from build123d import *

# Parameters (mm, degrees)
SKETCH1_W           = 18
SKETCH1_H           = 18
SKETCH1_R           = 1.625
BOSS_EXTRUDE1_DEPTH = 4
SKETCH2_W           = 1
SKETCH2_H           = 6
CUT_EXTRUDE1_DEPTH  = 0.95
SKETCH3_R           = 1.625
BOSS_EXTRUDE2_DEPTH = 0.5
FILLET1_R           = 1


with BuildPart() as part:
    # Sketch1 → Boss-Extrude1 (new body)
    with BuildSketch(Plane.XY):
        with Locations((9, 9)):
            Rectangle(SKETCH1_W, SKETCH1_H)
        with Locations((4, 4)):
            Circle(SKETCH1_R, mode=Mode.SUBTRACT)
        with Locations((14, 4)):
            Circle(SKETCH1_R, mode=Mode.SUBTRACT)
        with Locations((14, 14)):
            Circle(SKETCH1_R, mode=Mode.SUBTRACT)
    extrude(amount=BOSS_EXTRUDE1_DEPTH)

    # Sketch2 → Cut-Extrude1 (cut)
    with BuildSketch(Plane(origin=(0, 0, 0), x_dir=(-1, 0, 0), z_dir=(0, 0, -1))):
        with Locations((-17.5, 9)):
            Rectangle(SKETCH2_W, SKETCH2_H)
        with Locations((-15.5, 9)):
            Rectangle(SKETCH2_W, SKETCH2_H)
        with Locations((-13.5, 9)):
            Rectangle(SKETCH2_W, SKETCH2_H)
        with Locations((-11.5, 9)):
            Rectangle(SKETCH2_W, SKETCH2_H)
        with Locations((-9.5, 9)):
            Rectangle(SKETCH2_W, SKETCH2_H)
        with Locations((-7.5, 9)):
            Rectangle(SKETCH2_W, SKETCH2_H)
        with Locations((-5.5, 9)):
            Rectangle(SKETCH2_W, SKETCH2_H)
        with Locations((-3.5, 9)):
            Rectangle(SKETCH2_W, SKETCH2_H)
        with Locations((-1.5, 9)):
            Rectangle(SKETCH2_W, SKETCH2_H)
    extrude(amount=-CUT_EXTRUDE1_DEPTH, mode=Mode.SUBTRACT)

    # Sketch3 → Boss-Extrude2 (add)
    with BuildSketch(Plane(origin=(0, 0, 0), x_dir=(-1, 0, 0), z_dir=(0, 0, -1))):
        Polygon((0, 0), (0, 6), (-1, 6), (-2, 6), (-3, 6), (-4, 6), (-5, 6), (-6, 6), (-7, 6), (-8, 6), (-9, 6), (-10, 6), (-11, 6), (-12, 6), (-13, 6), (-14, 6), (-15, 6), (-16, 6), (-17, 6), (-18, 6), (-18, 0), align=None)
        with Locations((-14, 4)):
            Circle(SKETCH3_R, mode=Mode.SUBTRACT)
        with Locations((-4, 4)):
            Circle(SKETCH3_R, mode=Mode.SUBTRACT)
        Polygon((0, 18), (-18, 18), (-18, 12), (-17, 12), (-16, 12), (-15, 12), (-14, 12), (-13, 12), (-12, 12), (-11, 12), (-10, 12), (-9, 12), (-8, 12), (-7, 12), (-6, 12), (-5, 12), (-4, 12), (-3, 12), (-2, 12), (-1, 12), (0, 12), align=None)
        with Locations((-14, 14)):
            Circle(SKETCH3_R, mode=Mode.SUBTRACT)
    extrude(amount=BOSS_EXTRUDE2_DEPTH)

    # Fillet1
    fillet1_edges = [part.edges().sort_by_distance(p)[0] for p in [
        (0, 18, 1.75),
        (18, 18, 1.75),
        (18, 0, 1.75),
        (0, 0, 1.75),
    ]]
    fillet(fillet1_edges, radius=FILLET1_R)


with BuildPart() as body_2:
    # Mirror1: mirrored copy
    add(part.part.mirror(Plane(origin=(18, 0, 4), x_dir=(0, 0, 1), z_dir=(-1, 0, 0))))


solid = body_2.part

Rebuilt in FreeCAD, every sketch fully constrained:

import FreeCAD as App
import Part
import Sketcher

V = App.Vector


def edges_at(feature, points):
    """Names of the edges that pass closest to the given points."""
    edges = feature.Shape.Edges
    near = lambda p: min(range(len(edges)), key=lambda i: edges[i].distToShape(Part.Vertex(*p))[0])
    return sorted({f"Edge{near(p) + 1}" for p in points})

doc = App.newDocument("Part")
body = doc.addObject("PartDesign::Body", "Body")

# Sketch on XY plane
sketch1 = body.newObject("Sketcher::SketchObject", "Sketch")
sketch1.AttachmentSupport = (doc.getObject("XY_Plane"), [""])
sketch1.MapMode = "FlatFace"
sketch1.addGeometry(Part.LineSegment(V(0, 18, 0), V(0, 0, 0)), False)
sketch1.addGeometry(Part.LineSegment(V(0, 0, 0), V(18, 0, 0)), False)
sketch1.addGeometry(Part.LineSegment(V(18, 0, 0), V(18, 18, 0)), False)
sketch1.addGeometry(Part.LineSegment(V(18, 18, 0), V(0, 18, 0)), False)
sketch1.addGeometry(Part.Circle(V(4, 4, 0), V(0, 0, 1), 1.625), False)
sketch1.addGeometry(Part.Circle(V(14, 4, 0), V(0, 0, 1), 1.625), False)
sketch1.addGeometry(Part.Circle(V(14, 14, 0), V(0, 0, 1), 1.625), False)
sketch1.addConstraint(Sketcher.Constraint("Coincident", 0, 2, 1, 1))
sketch1.addConstraint(Sketcher.Constraint("Coincident", 1, 2, 2, 1))
sketch1.addConstraint(Sketcher.Constraint("Coincident", 2, 2, 3, 1))
sketch1.addConstraint(Sketcher.Constraint("Coincident", 3, 2, 0, 1))
sketch1.addConstraint(Sketcher.Constraint("Vertical", 0))
sketch1.addConstraint(Sketcher.Constraint("Horizontal", 1))
sketch1.addConstraint(Sketcher.Constraint("Vertical", 2))
sketch1.addConstraint(Sketcher.Constraint("Horizontal", 3))
sketch1.addConstraint(Sketcher.Constraint("Coincident", 0, 2, -1, 1))
sketch1.addConstraint(Sketcher.Constraint("Equal", 4, 5))
sketch1.addConstraint(Sketcher.Constraint("Equal", 5, 6))
sketch1.addConstraint(Sketcher.Constraint("Horizontal", 4, 3, 5, 3))
sketch1.addConstraint(Sketcher.Constraint("Vertical", 5, 3, 6, 3))
sketch1.addConstraint(Sketcher.Constraint("Equal", 3, 0))
sketch1.addConstraint(Sketcher.Constraint("Diameter", 4, 3.25))
sketch1.addConstraint(Sketcher.Constraint("DistanceX", 1, 1, 1, 2, 18.0))
sketch1.addConstraint(Sketcher.Constraint("DistanceX", -1, 1, 4, 3, 4.0))
sketch1.addConstraint(Sketcher.Constraint("DistanceY", -1, 1, 4, 3, 4.0))
sketch1.addConstraint(Sketcher.Constraint("DistanceX", -1, 1, 5, 3, 14.0))
sketch1.addConstraint(Sketcher.Constraint("DistanceY", -1, 1, 6, 3, 14.0))
pad1 = body.newObject("PartDesign::Pad", "Pad")
pad1.Profile = sketch1
pad1.Length = 4

# Sketch on XY plane
sketch2 = body.newObject("Sketcher::SketchObject", "Sketch001")
sketch2.AttachmentSupport = (doc.getObject("XY_Plane"), [""])
sketch2.MapMode = "FlatFace"
sketch2.addGeometry(Part.LineSegment(V(18, 12, 0), V(18, 6, 0)), False)
sketch2.addGeometry(Part.LineSegment(V(18, 6, 0), V(17, 6, 0)), False)
sketch2.addGeometry(Part.LineSegment(V(17, 6, 0), V(17, 12, 0)), False)
sketch2.addGeometry(Part.LineSegment(V(17, 12, 0), V(18, 12, 0)), False)
sketch2.addGeometry(Part.LineSegment(V(16, 12, 0), V(16, 6, 0)), False)
sketch2.addGeometry(Part.LineSegment(V(16, 6, 0), V(15, 6, 0)), False)
sketch2.addGeometry(Part.LineSegment(V(15, 6, 0), V(15, 12, 0)), False)
sketch2.addGeometry(Part.LineSegment(V(15, 12, 0), V(16, 12, 0)), False)
sketch2.addGeometry(Part.LineSegment(V(14, 12, 0), V(14, 6, 0)), False)
sketch2.addGeometry(Part.LineSegment(V(14, 6, 0), V(13, 6, 0)), False)
sketch2.addGeometry(Part.LineSegment(V(13, 6, 0), V(13, 12, 0)), False)
sketch2.addGeometry(Part.LineSegment(V(13, 12, 0), V(14, 12, 0)), False)
sketch2.addGeometry(Part.LineSegment(V(12, 12, 0), V(12, 6, 0)), False)
sketch2.addGeometry(Part.LineSegment(V(12, 6, 0), V(11, 6, 0)), False)
sketch2.addGeometry(Part.LineSegment(V(11, 6, 0), V(11, 12, 0)), False)
sketch2.addGeometry(Part.LineSegment(V(11, 12, 0), V(12, 12, 0)), False)
sketch2.addGeometry(Part.LineSegment(V(10, 12, 0), V(10, 6, 0)), False)
sketch2.addGeometry(Part.LineSegment(V(10, 6, 0), V(9, 6, 0)), False)
sketch2.addGeometry(Part.LineSegment(V(9, 6, 0), V(9, 12, 0)), False)
sketch2.addGeometry(Part.LineSegment(V(9, 12, 0), V(10, 12, 0)), False)
sketch2.addGeometry(Part.LineSegment(V(8, 12, 0), V(8, 6, 0)), False)
sketch2.addGeometry(Part.LineSegment(V(8, 6, 0), V(7, 6, 0)), False)
sketch2.addGeometry(Part.LineSegment(V(7, 6, 0), V(7, 12, 0)), False)
sketch2.addGeometry(Part.LineSegment(V(7, 12, 0), V(8, 12, 0)), False)
sketch2.addGeometry(Part.LineSegment(V(6, 12, 0), V(6, 6, 0)), False)
sketch2.addGeometry(Part.LineSegment(V(6, 6, 0), V(5, 6, 0)), False)
sketch2.addGeometry(Part.LineSegment(V(5, 6, 0), V(5, 12, 0)), False)
sketch2.addGeometry(Part.LineSegment(V(5, 12, 0), V(6, 12, 0)), False)
sketch2.addGeometry(Part.LineSegment(V(4, 12, 0), V(4, 6, 0)), False)
sketch2.addGeometry(Part.LineSegment(V(4, 6, 0), V(3, 6, 0)), False)
sketch2.addGeometry(Part.LineSegment(V(3, 6, 0), V(3, 12, 0)), False)
sketch2.addGeometry(Part.LineSegment(V(3, 12, 0), V(4, 12, 0)), False)
sketch2.addGeometry(Part.LineSegment(V(2, 12, 0), V(2, 6, 0)), False)
sketch2.addGeometry(Part.LineSegment(V(2, 6, 0), V(1, 6, 0)), False)
sketch2.addGeometry(Part.LineSegment(V(1, 6, 0), V(1, 12, 0)), False)
sketch2.addGeometry(Part.LineSegment(V(1, 12, 0), V(2, 12, 0)), False)
sketch2.addConstraint(Sketcher.Constraint("Coincident", 0, 2, 1, 1))
sketch2.addConstraint(Sketcher.Constraint("Coincident", 1, 2, 2, 1))
sketch2.addConstraint(Sketcher.Constraint("Coincident", 2, 2, 3, 1))
sketch2.addConstraint(Sketcher.Constraint("Coincident", 3, 2, 0, 1))
sketch2.addConstraint(Sketcher.Constraint("Coincident", 4, 2, 5, 1))
sketch2.addConstraint(Sketcher.Constraint("Coincident", 5, 2, 6, 1))
sketch2.addConstraint(Sketcher.Constraint("Coincident", 6, 2, 7, 1))
sketch2.addConstraint(Sketcher.Constraint("Coincident", 7, 2, 4, 1))
sketch2.addConstraint(Sketcher.Constraint("Coincident", 8, 2, 9, 1))
sketch2.addConstraint(Sketcher.Constraint("Coincident", 9, 2, 10, 1))
sketch2.addConstraint(Sketcher.Constraint("Coincident", 10, 2, 11, 1))
sketch2.addConstraint(Sketcher.Constraint("Coincident", 11, 2, 8, 1))
sketch2.addConstraint(Sketcher.Constraint("Coincident", 12, 2, 13, 1))
sketch2.addConstraint(Sketcher.Constraint("Coincident", 13, 2, 14, 1))
sketch2.addConstraint(Sketcher.Constraint("Coincident", 14, 2, 15, 1))
sketch2.addConstraint(Sketcher.Constraint("Coincident", 15, 2, 12, 1))
sketch2.addConstraint(Sketcher.Constraint("Coincident", 16, 2, 17, 1))
sketch2.addConstraint(Sketcher.Constraint("Coincident", 17, 2, 18, 1))
sketch2.addConstraint(Sketcher.Constraint("Coincident", 18, 2, 19, 1))
sketch2.addConstraint(Sketcher.Constraint("Coincident", 19, 2, 16, 1))
sketch2.addConstraint(Sketcher.Constraint("Coincident", 20, 2, 21, 1))
sketch2.addConstraint(Sketcher.Constraint("Coincident", 21, 2, 22, 1))
sketch2.addConstraint(Sketcher.Constraint("Coincident", 22, 2, 23, 1))
sketch2.addConstraint(Sketcher.Constraint("Coincident", 23, 2, 20, 1))
sketch2.addConstraint(Sketcher.Constraint("Coincident", 24, 2, 25, 1))
sketch2.addConstraint(Sketcher.Constraint("Coincident", 25, 2, 26, 1))
sketch2.addConstraint(Sketcher.Constraint("Coincident", 26, 2, 27, 1))
sketch2.addConstraint(Sketcher.Constraint("Coincident", 27, 2, 24, 1))
sketch2.addConstraint(Sketcher.Constraint("Coincident", 28, 2, 29, 1))
sketch2.addConstraint(Sketcher.Constraint("Coincident", 29, 2, 30, 1))
sketch2.addConstraint(Sketcher.Constraint("Coincident", 30, 2, 31, 1))
sketch2.addConstraint(Sketcher.Constraint("Coincident", 31, 2, 28, 1))
sketch2.addConstraint(Sketcher.Constraint("Coincident", 32, 2, 33, 1))
sketch2.addConstraint(Sketcher.Constraint("Coincident", 33, 2, 34, 1))
sketch2.addConstraint(Sketcher.Constraint("Coincident", 34, 2, 35, 1))
sketch2.addConstraint(Sketcher.Constraint("Coincident", 35, 2, 32, 1))
sketch2.addConstraint(Sketcher.Constraint("Vertical", 0))
sketch2.addConstraint(Sketcher.Constraint("Horizontal", 1))
sketch2.addConstraint(Sketcher.Constraint("Vertical", 2))
sketch2.addConstraint(Sketcher.Constraint("Horizontal", 3))
sketch2.addConstraint(Sketcher.Constraint("Vertical", 4))
sketch2.addConstraint(Sketcher.Constraint("Horizontal", 5))
sketch2.addConstraint(Sketcher.Constraint("Vertical", 6))
sketch2.addConstraint(Sketcher.Constraint("Horizontal", 7))
sketch2.addConstraint(Sketcher.Constraint("Vertical", 8))
sketch2.addConstraint(Sketcher.Constraint("Horizontal", 9))
sketch2.addConstraint(Sketcher.Constraint("Vertical", 10))
sketch2.addConstraint(Sketcher.Constraint("Horizontal", 11))
sketch2.addConstraint(Sketcher.Constraint("Vertical", 12))
sketch2.addConstraint(Sketcher.Constraint("Horizontal", 13))
sketch2.addConstraint(Sketcher.Constraint("Vertical", 14))
sketch2.addConstraint(Sketcher.Constraint("Horizontal", 15))
sketch2.addConstraint(Sketcher.Constraint("Vertical", 16))
sketch2.addConstraint(Sketcher.Constraint("Horizontal", 17))
sketch2.addConstraint(Sketcher.Constraint("Vertical", 18))
sketch2.addConstraint(Sketcher.Constraint("Horizontal", 19))
sketch2.addConstraint(Sketcher.Constraint("Vertical", 20))
sketch2.addConstraint(Sketcher.Constraint("Horizontal", 21))
sketch2.addConstraint(Sketcher.Constraint("Vertical", 22))
sketch2.addConstraint(Sketcher.Constraint("Horizontal", 23))
sketch2.addConstraint(Sketcher.Constraint("Vertical", 24))
sketch2.addConstraint(Sketcher.Constraint("Horizontal", 25))
sketch2.addConstraint(Sketcher.Constraint("Vertical", 26))
sketch2.addConstraint(Sketcher.Constraint("Horizontal", 27))
sketch2.addConstraint(Sketcher.Constraint("Vertical", 28))
sketch2.addConstraint(Sketcher.Constraint("Horizontal", 29))
sketch2.addConstraint(Sketcher.Constraint("Vertical", 30))
sketch2.addConstraint(Sketcher.Constraint("Horizontal", 31))
sketch2.addConstraint(Sketcher.Constraint("Vertical", 32))
sketch2.addConstraint(Sketcher.Constraint("Horizontal", 33))
sketch2.addConstraint(Sketcher.Constraint("Vertical", 34))
sketch2.addConstraint(Sketcher.Constraint("Horizontal", 35))
sketch2.addConstraint(Sketcher.Constraint("Horizontal", 1, 2, 4, 2))
sketch2.addConstraint(Sketcher.Constraint("Horizontal", 3, 2, 6, 2))
sketch2.addConstraint(Sketcher.Constraint("Horizontal", 5, 2, 8, 2))
sketch2.addConstraint(Sketcher.Constraint("Horizontal", 7, 2, 10, 2))
sketch2.addConstraint(Sketcher.Constraint("Horizontal", 9, 2, 12, 2))
sketch2.addConstraint(Sketcher.Constraint("Horizontal", 11, 2, 14, 2))
sketch2.addConstraint(Sketcher.Constraint("Horizontal", 13, 2, 16, 2))
sketch2.addConstraint(Sketcher.Constraint("Horizontal", 15, 2, 18, 2))
sketch2.addConstraint(Sketcher.Constraint("Horizontal", 17, 2, 20, 2))
sketch2.addConstraint(Sketcher.Constraint("Horizontal", 19, 2, 22, 2))
sketch2.addConstraint(Sketcher.Constraint("Horizontal", 21, 2, 24, 2))
sketch2.addConstraint(Sketcher.Constraint("Horizontal", 23, 2, 26, 2))
sketch2.addConstraint(Sketcher.Constraint("Horizontal", 25, 2, 28, 2))
sketch2.addConstraint(Sketcher.Constraint("Horizontal", 27, 2, 30, 2))
sketch2.addConstraint(Sketcher.Constraint("Horizontal", 29, 2, 32, 2))
sketch2.addConstraint(Sketcher.Constraint("Horizontal", 31, 2, 34, 2))
sketch2.addConstraint(Sketcher.Constraint("Equal", 3, 5))
sketch2.addConstraint(Sketcher.Constraint("Equal", 7, 9))
sketch2.addConstraint(Sketcher.Constraint("Equal", 11, 13))
sketch2.addConstraint(Sketcher.Constraint("Equal", 15, 17))
sketch2.addConstraint(Sketcher.Constraint("Equal", 19, 21))
sketch2.addConstraint(Sketcher.Constraint("Equal", 23, 25))
sketch2.addConstraint(Sketcher.Constraint("Equal", 27, 29))
sketch2.addConstraint(Sketcher.Constraint("Equal", 31, 33))
sketch2.addConstraint(Sketcher.Constraint("DistanceX", 1, 2, 1, 1, 1.0))
sketch2.addConstraint(Sketcher.Constraint("DistanceY", 0, 2, 0, 1, 6.0))
sketch2.addConstraint(Sketcher.Constraint("DistanceX", -1, 1, 0, 2, 18.0))
sketch2.addConstraint(Sketcher.Constraint("DistanceY", -1, 1, 0, 2, 6.0))
sketch2.addConstraint(Sketcher.Constraint("DistanceX", -1, 1, 4, 2, 16.0))
sketch2.addConstraint(Sketcher.Constraint("DistanceX", -1, 1, 8, 2, 14.0))
sketch2.addConstraint(Sketcher.Constraint("DistanceX", -1, 1, 12, 2, 12.0))
sketch2.addConstraint(Sketcher.Constraint("DistanceX", -1, 1, 16, 2, 10.0))
sketch2.addConstraint(Sketcher.Constraint("DistanceX", -1, 1, 20, 2, 8.0))
sketch2.addConstraint(Sketcher.Constraint("DistanceX", -1, 1, 24, 2, 6.0))
sketch2.addConstraint(Sketcher.Constraint("DistanceX", -1, 1, 28, 2, 4.0))
sketch2.addConstraint(Sketcher.Constraint("DistanceX", -1, 1, 32, 2, 2.0))
pocket1 = body.newObject("PartDesign::Pocket", "Pocket")
pocket1.Profile = sketch2
pocket1.Length = 0.95
pocket1.Reversed = True

# Sketch on XY plane
sketch3 = body.newObject("Sketcher::SketchObject", "Sketch002")
sketch3.AttachmentSupport = (doc.getObject("XY_Plane"), [""])
sketch3.MapMode = "FlatFace"
sketch3.addGeometry(Part.LineSegment(V(0, 0, 0), V(0, 6, 0)), False)
sketch3.addGeometry(Part.LineSegment(V(0, 6, 0), V(18, 6, 0)), False)
sketch3.addGeometry(Part.LineSegment(V(18, 6, 0), V(18, 0, 0)), False)
sketch3.addGeometry(Part.LineSegment(V(18, 0, 0), V(0, 0, 0)), False)
sketch3.addGeometry(Part.Circle(V(14, 4, 0), V(0, 0, 1), 1.625), False)
sketch3.addGeometry(Part.Circle(V(4, 4, 0), V(0, 0, 1), 1.625), False)
sketch3.addGeometry(Part.LineSegment(V(0, 18, 0), V(18, 18, 0)), False)
sketch3.addGeometry(Part.LineSegment(V(18, 18, 0), V(18, 12, 0)), False)
sketch3.addGeometry(Part.LineSegment(V(18, 12, 0), V(0, 12, 0)), False)
sketch3.addGeometry(Part.LineSegment(V(0, 12, 0), V(0, 18, 0)), False)
sketch3.addGeometry(Part.Circle(V(14, 14, 0), V(0, 0, 1), 1.625), False)
sketch3.addConstraint(Sketcher.Constraint("Coincident", 0, 2, 1, 1))
sketch3.addConstraint(Sketcher.Constraint("Coincident", 1, 2, 2, 1))
sketch3.addConstraint(Sketcher.Constraint("Coincident", 2, 2, 3, 1))
sketch3.addConstraint(Sketcher.Constraint("Coincident", 3, 2, 0, 1))
sketch3.addConstraint(Sketcher.Constraint("Coincident", 6, 2, 7, 1))
sketch3.addConstraint(Sketcher.Constraint("Coincident", 7, 2, 8, 1))
sketch3.addConstraint(Sketcher.Constraint("Coincident", 8, 2, 9, 1))
sketch3.addConstraint(Sketcher.Constraint("Coincident", 9, 2, 6, 1))
sketch3.addConstraint(Sketcher.Constraint("Vertical", 0))
sketch3.addConstraint(Sketcher.Constraint("Horizontal", 1))
sketch3.addConstraint(Sketcher.Constraint("Vertical", 2))
sketch3.addConstraint(Sketcher.Constraint("Horizontal", 3))
sketch3.addConstraint(Sketcher.Constraint("Horizontal", 6))
sketch3.addConstraint(Sketcher.Constraint("Vertical", 7))
sketch3.addConstraint(Sketcher.Constraint("Horizontal", 8))
sketch3.addConstraint(Sketcher.Constraint("Vertical", 9))
sketch3.addConstraint(Sketcher.Constraint("Coincident", 3, 2, -1, 1))
sketch3.addConstraint(Sketcher.Constraint("Equal", 4, 5))
sketch3.addConstraint(Sketcher.Constraint("Equal", 5, 10))
sketch3.addConstraint(Sketcher.Constraint("PointOnObject", 8, 2, -2))
sketch3.addConstraint(Sketcher.Constraint("Horizontal", 4, 3, 5, 3))
sketch3.addConstraint(Sketcher.Constraint("Vertical", 4, 3, 10, 3))
sketch3.addConstraint(Sketcher.Constraint("Vertical", 2, 2, 6, 2))
sketch3.addConstraint(Sketcher.Constraint("Equal", 2, 7))
sketch3.addConstraint(Sketcher.Constraint("Diameter", 4, 3.25))
sketch3.addConstraint(Sketcher.Constraint("DistanceX", 1, 1, 1, 2, 18.0))
sketch3.addConstraint(Sketcher.Constraint("DistanceY", 0, 1, 0, 2, 6.0))
sketch3.addConstraint(Sketcher.Constraint("DistanceX", -1, 1, 4, 3, 14.0))
sketch3.addConstraint(Sketcher.Constraint("DistanceY", -1, 1, 4, 3, 4.0))
sketch3.addConstraint(Sketcher.Constraint("DistanceX", -1, 1, 5, 3, 4.0))
sketch3.addConstraint(Sketcher.Constraint("DistanceY", -1, 1, 10, 3, 14.0))
sketch3.addConstraint(Sketcher.Constraint("DistanceY", -1, 1, 6, 2, 18.0))
pad2 = body.newObject("PartDesign::Pad", "Pad001")
pad2.Profile = sketch3
pad2.Length = 0.5
pad2.Reversed = True
doc.recompute()

fillet = body.newObject("PartDesign::Fillet", "Fillet")
fillet.Base = (pad2, edges_at(pad2, [
    (0, 18, 1.75),
    (18, 18, 1.75),
    (18, 0, 1.75),
    (0, 0, 1.75),
]))
fillet.Radius = 1
body2 = doc.addObject("PartDesign::Body", "Body001")
doc.recompute()

mirroring = doc.addObject("Part::Mirroring", "Mirroring")
mirroring.Source = body
mirroring.Base = V(18, 0, 4)
mirroring.Normal = V(-1, 0, 0)
body2.BaseFeature = mirroring
doc.recompute()
body.Visibility = False
mirroring.Visibility = False

doc.recompute()
